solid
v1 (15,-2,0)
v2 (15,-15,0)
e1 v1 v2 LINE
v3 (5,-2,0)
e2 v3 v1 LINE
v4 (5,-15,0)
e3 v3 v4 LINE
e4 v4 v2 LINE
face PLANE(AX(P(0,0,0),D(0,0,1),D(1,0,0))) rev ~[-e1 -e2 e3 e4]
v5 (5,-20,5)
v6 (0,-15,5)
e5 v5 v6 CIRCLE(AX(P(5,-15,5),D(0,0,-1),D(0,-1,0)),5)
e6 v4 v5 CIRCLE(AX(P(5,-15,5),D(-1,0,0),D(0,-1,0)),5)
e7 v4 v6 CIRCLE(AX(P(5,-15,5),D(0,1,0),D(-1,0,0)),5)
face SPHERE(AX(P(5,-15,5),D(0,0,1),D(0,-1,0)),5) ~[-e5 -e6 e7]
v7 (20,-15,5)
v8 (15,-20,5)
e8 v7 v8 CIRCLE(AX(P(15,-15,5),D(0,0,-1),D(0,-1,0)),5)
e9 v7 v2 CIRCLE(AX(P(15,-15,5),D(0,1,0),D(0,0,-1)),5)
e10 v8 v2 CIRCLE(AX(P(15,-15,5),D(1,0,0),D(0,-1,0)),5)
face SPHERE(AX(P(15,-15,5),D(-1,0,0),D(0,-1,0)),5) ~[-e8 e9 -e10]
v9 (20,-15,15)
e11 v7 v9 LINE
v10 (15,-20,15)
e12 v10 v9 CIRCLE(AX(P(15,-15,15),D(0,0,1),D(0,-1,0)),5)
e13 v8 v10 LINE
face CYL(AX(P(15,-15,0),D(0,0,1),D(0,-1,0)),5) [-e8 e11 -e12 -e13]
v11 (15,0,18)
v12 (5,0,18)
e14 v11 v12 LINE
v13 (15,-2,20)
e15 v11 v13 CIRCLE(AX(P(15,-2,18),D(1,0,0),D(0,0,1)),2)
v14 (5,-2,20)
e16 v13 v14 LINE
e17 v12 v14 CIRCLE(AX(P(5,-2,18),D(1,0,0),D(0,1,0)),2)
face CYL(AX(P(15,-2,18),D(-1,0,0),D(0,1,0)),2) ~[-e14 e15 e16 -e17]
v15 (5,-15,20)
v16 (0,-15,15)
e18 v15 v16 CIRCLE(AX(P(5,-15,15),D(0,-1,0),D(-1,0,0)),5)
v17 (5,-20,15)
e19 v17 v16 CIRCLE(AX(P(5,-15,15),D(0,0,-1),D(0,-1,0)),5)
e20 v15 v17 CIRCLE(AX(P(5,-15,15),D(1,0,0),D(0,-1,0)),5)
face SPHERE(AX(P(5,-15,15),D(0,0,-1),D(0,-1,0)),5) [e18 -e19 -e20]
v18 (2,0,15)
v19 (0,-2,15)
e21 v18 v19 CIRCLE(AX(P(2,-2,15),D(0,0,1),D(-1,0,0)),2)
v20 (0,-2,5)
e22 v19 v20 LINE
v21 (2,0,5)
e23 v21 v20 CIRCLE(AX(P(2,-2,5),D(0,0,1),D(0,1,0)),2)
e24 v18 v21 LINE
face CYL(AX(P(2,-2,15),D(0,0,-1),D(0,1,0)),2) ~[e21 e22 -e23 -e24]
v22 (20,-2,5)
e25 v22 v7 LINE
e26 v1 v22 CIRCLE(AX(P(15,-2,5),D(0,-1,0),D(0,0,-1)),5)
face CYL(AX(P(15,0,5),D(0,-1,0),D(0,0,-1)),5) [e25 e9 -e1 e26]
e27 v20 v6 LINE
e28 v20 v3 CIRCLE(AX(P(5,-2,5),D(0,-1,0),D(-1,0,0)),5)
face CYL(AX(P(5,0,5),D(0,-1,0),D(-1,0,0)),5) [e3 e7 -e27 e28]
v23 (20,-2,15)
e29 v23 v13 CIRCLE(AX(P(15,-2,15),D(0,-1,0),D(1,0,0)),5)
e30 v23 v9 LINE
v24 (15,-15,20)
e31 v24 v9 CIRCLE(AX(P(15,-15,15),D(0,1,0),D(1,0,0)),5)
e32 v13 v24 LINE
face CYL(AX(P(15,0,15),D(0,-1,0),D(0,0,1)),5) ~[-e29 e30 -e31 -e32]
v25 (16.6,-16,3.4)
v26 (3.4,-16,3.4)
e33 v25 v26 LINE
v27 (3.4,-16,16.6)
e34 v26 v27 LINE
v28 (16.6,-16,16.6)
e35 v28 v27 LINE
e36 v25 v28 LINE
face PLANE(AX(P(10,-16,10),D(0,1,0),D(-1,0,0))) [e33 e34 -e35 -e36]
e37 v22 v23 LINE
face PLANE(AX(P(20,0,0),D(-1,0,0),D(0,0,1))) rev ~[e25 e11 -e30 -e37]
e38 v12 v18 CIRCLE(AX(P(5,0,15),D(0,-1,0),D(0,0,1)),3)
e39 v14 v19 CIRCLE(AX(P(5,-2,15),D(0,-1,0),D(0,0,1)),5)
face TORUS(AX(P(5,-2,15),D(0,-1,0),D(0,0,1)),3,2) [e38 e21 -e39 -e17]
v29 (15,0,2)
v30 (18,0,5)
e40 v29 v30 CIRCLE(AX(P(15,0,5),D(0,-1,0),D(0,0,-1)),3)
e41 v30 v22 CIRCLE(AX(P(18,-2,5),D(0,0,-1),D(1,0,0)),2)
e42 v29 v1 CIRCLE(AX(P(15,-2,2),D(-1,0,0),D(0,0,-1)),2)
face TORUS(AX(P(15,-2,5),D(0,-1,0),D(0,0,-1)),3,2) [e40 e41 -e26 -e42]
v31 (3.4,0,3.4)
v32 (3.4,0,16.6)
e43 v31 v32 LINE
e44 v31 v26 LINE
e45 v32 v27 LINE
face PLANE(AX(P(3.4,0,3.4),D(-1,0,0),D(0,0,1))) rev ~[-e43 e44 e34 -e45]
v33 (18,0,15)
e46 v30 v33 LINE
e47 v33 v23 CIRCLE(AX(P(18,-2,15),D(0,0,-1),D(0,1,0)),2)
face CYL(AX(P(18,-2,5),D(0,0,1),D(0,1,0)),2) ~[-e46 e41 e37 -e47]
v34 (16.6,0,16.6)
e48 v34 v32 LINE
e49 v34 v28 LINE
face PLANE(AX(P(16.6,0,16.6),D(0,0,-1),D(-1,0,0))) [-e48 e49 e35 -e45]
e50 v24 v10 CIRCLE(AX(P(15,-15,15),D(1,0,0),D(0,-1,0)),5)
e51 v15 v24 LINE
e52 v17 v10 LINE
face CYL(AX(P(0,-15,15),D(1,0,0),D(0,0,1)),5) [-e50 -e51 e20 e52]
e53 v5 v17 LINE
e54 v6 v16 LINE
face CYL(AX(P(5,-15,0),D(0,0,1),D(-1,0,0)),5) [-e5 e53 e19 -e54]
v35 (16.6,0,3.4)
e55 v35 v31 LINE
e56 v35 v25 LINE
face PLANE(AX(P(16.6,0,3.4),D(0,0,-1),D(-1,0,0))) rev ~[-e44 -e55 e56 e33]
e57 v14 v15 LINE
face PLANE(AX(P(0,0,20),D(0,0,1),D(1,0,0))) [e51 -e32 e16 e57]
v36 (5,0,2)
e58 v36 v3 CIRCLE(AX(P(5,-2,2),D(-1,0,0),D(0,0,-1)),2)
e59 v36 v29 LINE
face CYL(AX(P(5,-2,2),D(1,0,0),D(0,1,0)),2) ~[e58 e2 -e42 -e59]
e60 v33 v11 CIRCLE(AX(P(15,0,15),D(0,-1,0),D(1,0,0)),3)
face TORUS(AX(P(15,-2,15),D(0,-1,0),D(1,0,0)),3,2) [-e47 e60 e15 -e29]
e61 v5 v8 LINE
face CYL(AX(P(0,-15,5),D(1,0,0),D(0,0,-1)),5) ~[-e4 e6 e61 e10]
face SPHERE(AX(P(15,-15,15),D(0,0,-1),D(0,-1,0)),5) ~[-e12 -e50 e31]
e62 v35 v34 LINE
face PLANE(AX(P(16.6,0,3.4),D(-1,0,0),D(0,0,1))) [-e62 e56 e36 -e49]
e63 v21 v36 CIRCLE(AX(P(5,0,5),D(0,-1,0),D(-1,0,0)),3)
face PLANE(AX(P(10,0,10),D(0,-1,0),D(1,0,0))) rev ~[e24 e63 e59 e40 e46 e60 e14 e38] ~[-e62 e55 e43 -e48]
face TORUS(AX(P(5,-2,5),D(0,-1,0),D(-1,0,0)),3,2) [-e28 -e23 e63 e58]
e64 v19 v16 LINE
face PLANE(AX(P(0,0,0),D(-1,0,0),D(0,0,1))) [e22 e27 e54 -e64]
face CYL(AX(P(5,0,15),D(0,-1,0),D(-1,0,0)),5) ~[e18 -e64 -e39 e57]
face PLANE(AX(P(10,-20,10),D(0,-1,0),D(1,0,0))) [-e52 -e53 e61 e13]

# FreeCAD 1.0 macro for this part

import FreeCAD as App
import Part
import Sketcher


def edges_at(feature, points):
    """Names of the edges that pass closest to the given points."""
    edges = feature.Shape.Edges
    near = lambda p: min(range(len(edges)), key=lambda i: edges[i].distToShape(Part.Vertex(*p))[0])
    return sorted({f"Edge{near(p) + 1}" for p in points})

doc = App.newDocument("Part")
params = doc.addObject("Spreadsheet::Sheet", "Params")
for row, (alias, value) in enumerate([
    ("sketch1_width", "20 mm"),
    ("pad1_length", "20 mm"),
    ("sketch2_width", "13.2 mm"),
    ("pocket1_length", "16 mm"),
    ("fillet_radius", "5 mm"),
    ("fillet2_radius", "2 mm"),
], start=1):
    params.set(f"A{row}", alias)
    params.set(f"B{row}", "=" + value)
    params.setAlias(f"B{row}", alias)

body = doc.addObject("PartDesign::Body", "Body")

# Sketch on XZ plane
sketch1 = body.newObject("Sketcher::SketchObject", "Sketch")
sketch1.AttachmentSupport = (doc.getObject("XZ_Plane"), [""])
sketch1.MapMode = "FlatFace"
sketch1.addGeometry([
    Part.LineSegment(App.Vector(0, 20, 0), App.Vector(0, 0, 0)),
    Part.LineSegment(App.Vector(0, 0, 0), App.Vector(20, 0, 0)),
    Part.LineSegment(App.Vector(20, 0, 0), App.Vector(20, 20, 0)),
    Part.LineSegment(App.Vector(20, 20, 0), App.Vector(0, 20, 0)),
], False)
sketch1.addConstraint([
    Sketcher.Constraint("Coincident", 0, 2, 1, 1),
    Sketcher.Constraint("Coincident", 1, 2, 2, 1),
    Sketcher.Constraint("Coincident", 2, 2, 3, 1),
    Sketcher.Constraint("Coincident", 3, 2, 0, 1),
    Sketcher.Constraint("Vertical", 0),
    Sketcher.Constraint("Horizontal", 1),
    Sketcher.Constraint("Vertical", 2),
    Sketcher.Constraint("Horizontal", 3),
    Sketcher.Constraint("Coincident", 0, 2, -1, 1),
    Sketcher.Constraint("Equal", 3, 0),
    Sketcher.Constraint("DistanceX", 1, 1, 1, 2, 20.0),
])
sketch1.setExpression("Constraints[10]", "Params.sketch1_width")
pad1 = body.newObject("PartDesign::Pad", "Pad")
pad1.Profile = sketch1
pad1.setExpression("Length", "Params.pad1_length")

# Sketch on XZ plane
sketch2 = body.newObject("Sketcher::SketchObject", "Sketch001")
sketch2.AttachmentSupport = (doc.getObject("XZ_Plane"), [""])
sketch2.MapMode = "FlatFace"
sketch2.addGeometry([
    Part.LineSegment(App.Vector(17, 17, 0), App.Vector(17, 3, 0)),
    Part.LineSegment(App.Vector(17, 3, 0), App.Vector(3, 3, 0)),
    Part.LineSegment(App.Vector(3, 3, 0), App.Vector(3, 17, 0)),
    Part.LineSegment(App.Vector(3, 17, 0), App.Vector(17, 17, 0)),
], False)
sketch2.addConstraint([
    Sketcher.Constraint("Coincident", 0, 2, 1, 1),
    Sketcher.Constraint("Coincident", 1, 2, 2, 1),
    Sketcher.Constraint("Coincident", 2, 2, 3, 1),
    Sketcher.Constraint("Coincident", 3, 2, 0, 1),
    Sketcher.Constraint("Vertical", 0),
    Sketcher.Constraint("Horizontal", 1),
    Sketcher.Constraint("Vertical", 2),
    Sketcher.Constraint("Horizontal", 3),
    Sketcher.Constraint("Equal", 3, 0),
    Sketcher.Constraint("DistanceX", 1, 2, 1, 1, 13.2),
    Sketcher.Constraint("DistanceX", -1, 1, 0, 2, 16.6),
    Sketcher.Constraint("DistanceY", -1, 1, 0, 2, 3.4),
])
sketch2.setExpression("Constraints[9]", "Params.sketch2_width")
pocket1 = body.newObject("PartDesign::Pocket", "Pocket")
pocket1.Profile = sketch2
pocket1.setExpression("Length", "Params.pocket1_length")
pocket1.Reversed = True
doc.recompute()

fillet = body.newObject("PartDesign::Fillet", "Fillet")
fillet.Base = (pocket1, edges_at(pocket1, [
    (0, -20, 10),
    (10, -20, 0),
    (20, -20, 10),
    (10, -20, 20),
    (20, -10, 20),
    (0, -10, 20),
    (20, -10, 0),
    (0, -10, 0),
]))
fillet.setExpression("Radius", "Params.fillet_radius")
doc.recompute()

fillet2 = body.newObject("PartDesign::Fillet", "Fillet001")
fillet2.Base = (fillet, edges_at(fillet, [
    (18.536, 0, 1.464),
    (20, 0, 10),
    (18.536, 0, 18.536),
    (10, 0, 20),
    (1.464, 0, 18.536),
    (0, 0, 10),
    (1.464, 0, 1.464),
    (10, 0, 0),
]))
fillet2.setExpression("Radius", "Params.fillet2_radius")

doc.recompute()
